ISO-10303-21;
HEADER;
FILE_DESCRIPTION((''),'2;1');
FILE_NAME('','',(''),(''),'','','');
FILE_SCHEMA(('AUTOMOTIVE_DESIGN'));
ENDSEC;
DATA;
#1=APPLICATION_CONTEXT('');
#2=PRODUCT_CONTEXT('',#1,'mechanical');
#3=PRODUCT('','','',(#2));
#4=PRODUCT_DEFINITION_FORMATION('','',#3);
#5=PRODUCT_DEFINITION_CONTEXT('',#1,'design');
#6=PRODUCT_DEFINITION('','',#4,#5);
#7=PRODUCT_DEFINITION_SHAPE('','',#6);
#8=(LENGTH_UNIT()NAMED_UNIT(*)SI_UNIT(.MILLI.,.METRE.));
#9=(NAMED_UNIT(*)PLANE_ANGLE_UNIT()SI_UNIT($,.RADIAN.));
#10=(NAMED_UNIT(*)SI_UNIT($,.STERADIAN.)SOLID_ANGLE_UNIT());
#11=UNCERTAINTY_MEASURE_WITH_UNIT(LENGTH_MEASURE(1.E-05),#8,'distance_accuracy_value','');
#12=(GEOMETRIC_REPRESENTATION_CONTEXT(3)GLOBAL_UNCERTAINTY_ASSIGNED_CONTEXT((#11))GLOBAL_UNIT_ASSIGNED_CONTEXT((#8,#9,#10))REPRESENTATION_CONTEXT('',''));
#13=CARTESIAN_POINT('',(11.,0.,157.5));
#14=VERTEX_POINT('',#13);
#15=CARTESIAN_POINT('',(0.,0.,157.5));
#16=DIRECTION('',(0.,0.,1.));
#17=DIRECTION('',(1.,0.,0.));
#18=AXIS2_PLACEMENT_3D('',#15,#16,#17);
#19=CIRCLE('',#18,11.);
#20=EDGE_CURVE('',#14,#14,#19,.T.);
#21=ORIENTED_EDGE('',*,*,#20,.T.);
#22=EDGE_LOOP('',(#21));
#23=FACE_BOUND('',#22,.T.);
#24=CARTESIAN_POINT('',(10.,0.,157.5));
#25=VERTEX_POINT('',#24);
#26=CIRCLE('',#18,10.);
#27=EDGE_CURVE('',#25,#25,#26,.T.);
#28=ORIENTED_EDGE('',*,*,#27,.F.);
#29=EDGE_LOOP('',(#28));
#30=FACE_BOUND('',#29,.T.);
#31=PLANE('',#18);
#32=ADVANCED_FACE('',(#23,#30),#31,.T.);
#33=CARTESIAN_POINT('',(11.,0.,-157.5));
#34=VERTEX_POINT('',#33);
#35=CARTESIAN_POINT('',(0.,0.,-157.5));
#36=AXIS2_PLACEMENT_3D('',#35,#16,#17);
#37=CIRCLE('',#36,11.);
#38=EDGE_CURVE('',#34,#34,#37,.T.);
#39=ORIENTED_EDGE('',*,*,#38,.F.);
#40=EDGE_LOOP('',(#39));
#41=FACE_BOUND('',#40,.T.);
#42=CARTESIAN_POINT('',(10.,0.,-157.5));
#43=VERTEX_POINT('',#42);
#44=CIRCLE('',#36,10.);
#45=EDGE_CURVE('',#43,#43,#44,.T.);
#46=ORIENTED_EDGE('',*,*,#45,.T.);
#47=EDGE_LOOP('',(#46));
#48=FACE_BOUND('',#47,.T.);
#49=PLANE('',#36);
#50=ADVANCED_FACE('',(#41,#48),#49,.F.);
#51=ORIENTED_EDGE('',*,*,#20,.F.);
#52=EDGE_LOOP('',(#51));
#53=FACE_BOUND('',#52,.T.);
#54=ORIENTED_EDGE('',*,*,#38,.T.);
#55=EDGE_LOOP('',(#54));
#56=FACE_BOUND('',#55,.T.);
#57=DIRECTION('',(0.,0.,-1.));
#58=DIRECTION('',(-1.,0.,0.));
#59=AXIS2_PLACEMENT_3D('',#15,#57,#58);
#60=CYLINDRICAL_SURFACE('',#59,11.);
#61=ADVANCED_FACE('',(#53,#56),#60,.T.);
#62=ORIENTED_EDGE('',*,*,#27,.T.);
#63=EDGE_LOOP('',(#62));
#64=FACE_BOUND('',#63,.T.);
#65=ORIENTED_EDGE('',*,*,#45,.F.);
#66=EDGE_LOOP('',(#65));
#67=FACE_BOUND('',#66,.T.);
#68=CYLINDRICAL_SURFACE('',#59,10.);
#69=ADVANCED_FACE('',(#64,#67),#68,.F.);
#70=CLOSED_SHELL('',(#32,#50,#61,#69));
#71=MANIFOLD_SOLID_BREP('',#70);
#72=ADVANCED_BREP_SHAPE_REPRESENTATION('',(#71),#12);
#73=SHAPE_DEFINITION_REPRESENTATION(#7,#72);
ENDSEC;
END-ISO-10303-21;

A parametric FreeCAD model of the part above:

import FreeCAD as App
import Part
import Sketcher
Q = App.Units.Quantity

doc = App.newDocument("Part")
body = doc.addObject("PartDesign::Body", "Body")

# Sketch on XY plane
sketch1 = body.newObject("Sketcher::SketchObject", "Sketch")
sketch1.AttachmentSupport = (doc.getObject("XY_Plane"), [""])
sketch1.MapMode = "FlatFace"
sketch1.addGeometry(Part.Circle(App.Vector(0, 0, 0), App.Vector(0, 0, 1), 11), False)
sketch1.addGeometry(Part.Circle(App.Vector(0, 0, 0), App.Vector(0, 0, 1), 10), False)
sketch1.addConstraint(Sketcher.Constraint("Coincident", 0, 3, -1, 1))
sketch1.addConstraint(Sketcher.Constraint("Coincident", 1, 3, -1, 1))
sketch1.addConstraint(Sketcher.Constraint("Diameter", 0, Q("22 mm")))
sketch1.addConstraint(Sketcher.Constraint("Diameter", 1, Q("20 mm")))
pad1 = body.newObject("PartDesign::Pad", "Pad")
pad1.Profile = sketch1
pad1.Length = 315
pad1.Midplane = True

doc.recompute()
